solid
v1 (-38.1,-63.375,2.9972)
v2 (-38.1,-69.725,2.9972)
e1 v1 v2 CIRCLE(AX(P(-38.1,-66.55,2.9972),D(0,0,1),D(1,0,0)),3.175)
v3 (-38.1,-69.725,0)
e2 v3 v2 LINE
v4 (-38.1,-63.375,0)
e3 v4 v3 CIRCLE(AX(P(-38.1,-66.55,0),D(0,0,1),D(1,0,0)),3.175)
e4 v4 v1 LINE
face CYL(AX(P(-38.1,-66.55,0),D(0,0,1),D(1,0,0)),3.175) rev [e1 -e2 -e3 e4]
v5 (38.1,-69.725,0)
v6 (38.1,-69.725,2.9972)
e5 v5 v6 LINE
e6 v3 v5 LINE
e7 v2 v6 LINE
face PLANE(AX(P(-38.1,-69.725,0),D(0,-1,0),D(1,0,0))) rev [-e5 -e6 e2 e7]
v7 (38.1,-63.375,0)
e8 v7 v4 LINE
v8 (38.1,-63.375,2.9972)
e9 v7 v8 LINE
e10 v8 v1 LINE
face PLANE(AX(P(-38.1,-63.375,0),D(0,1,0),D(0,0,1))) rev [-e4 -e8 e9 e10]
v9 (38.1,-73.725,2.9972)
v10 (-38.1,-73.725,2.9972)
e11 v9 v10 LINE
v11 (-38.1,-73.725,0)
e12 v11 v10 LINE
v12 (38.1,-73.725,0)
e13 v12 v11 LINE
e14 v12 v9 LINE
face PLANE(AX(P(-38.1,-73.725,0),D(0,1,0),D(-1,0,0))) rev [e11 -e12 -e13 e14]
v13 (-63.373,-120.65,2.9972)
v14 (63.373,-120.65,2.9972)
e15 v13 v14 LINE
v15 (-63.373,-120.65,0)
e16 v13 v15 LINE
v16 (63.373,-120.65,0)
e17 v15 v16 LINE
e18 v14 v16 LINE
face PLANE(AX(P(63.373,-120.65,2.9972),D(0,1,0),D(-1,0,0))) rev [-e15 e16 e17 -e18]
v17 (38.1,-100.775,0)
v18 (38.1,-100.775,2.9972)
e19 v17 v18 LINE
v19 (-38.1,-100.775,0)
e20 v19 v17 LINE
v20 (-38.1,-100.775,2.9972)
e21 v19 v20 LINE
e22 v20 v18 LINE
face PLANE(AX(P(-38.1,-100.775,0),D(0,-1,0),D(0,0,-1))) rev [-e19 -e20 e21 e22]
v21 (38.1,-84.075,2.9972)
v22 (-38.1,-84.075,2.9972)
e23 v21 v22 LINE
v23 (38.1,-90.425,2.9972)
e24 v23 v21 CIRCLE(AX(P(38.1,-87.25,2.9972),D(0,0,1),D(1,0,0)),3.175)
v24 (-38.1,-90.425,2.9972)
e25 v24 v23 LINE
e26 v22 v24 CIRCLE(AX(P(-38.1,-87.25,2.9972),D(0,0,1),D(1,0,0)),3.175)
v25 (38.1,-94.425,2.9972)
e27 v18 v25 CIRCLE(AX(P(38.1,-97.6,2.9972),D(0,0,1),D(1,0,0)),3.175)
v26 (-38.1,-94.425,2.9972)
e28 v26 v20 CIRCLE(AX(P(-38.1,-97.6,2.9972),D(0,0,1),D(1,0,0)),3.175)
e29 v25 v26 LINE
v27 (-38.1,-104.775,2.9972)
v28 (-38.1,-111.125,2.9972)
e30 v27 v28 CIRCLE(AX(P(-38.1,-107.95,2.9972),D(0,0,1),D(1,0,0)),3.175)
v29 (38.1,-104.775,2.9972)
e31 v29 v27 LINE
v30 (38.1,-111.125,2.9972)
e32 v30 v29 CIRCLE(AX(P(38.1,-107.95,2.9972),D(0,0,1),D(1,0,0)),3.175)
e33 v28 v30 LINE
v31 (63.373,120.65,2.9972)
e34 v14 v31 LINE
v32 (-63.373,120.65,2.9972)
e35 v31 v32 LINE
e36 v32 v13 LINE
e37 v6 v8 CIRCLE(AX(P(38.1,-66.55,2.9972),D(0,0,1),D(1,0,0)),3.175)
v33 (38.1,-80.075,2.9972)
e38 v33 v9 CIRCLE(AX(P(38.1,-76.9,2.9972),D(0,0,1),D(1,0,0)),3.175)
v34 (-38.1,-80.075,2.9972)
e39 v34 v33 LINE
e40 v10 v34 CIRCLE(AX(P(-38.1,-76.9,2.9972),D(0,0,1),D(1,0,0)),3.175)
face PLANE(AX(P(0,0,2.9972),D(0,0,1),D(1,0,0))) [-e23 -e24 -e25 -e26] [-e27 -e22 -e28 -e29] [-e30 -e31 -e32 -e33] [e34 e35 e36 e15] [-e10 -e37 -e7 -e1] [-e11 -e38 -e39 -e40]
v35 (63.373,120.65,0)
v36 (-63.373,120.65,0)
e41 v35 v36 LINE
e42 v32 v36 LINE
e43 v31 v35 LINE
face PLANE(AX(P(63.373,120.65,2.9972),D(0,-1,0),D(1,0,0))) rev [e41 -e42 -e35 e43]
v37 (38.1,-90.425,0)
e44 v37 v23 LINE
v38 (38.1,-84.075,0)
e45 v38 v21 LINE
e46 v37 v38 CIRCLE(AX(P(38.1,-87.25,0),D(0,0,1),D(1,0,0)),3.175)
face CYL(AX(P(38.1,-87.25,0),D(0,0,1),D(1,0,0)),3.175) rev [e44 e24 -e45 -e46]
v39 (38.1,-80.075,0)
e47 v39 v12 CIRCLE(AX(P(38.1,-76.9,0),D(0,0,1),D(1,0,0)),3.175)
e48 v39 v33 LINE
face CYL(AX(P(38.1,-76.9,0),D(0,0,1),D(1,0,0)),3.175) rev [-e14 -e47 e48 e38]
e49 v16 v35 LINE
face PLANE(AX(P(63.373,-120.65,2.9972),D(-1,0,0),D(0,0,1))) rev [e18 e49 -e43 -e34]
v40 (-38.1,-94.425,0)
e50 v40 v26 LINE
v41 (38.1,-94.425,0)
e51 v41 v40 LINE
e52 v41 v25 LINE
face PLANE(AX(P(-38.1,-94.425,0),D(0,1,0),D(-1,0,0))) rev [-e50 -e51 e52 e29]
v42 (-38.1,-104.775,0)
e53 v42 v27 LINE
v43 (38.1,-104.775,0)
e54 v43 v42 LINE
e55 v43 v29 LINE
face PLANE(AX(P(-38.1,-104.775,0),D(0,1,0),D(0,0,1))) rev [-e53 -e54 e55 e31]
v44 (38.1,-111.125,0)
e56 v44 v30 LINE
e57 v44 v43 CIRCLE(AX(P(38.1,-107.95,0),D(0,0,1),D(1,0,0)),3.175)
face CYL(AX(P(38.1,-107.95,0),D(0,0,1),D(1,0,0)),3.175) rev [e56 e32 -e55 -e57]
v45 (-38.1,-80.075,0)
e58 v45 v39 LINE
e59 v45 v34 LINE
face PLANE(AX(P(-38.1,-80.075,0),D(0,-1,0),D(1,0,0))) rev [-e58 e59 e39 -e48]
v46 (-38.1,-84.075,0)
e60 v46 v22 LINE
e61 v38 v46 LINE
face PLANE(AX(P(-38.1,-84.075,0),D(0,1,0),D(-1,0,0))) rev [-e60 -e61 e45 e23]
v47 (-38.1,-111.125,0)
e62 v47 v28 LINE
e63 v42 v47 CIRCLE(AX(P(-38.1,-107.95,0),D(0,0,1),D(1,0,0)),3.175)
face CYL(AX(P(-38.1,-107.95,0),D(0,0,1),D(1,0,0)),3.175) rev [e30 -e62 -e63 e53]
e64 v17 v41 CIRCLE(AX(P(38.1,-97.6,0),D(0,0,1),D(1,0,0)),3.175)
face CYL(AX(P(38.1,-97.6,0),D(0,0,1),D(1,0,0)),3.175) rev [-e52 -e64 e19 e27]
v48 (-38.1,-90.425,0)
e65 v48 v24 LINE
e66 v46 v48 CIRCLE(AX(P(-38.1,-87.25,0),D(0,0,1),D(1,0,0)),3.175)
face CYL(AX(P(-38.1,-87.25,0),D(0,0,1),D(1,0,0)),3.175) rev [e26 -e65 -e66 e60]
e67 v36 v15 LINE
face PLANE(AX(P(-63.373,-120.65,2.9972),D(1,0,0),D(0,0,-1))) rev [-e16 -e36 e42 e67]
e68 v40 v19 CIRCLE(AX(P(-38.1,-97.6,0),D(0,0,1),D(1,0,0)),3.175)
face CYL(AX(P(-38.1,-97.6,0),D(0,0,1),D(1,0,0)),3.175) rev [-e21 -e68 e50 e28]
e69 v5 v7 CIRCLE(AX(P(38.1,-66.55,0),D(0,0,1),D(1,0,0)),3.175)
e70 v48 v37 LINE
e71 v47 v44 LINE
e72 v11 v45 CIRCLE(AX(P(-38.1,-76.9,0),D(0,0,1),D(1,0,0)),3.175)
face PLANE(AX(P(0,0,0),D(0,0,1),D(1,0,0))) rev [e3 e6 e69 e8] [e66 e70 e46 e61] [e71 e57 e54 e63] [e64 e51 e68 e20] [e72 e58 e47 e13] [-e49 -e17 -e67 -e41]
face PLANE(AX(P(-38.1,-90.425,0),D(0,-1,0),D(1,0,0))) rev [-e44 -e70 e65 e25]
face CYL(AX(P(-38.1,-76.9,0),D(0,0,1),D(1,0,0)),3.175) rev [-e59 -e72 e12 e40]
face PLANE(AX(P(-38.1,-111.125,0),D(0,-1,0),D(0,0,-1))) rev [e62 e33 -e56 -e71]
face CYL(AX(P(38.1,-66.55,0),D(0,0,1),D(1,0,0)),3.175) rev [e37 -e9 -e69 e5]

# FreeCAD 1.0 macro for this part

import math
import FreeCAD as App
import Part
import Sketcher

V = App.Vector
Q = App.Units.Quantity


def add_polygon(sketch, points):
    """Adds a closed chain of lines whose ends are joined by coincident constraints."""
    first, n = sketch.GeometryCount, len(points)
    for a, b in zip(points, points[1:] + points[:1]):
        sketch.addGeometry(Part.LineSegment(App.Vector(*a, 0), App.Vector(*b, 0)), False)
    for i in range(n):
        sketch.addConstraint(Sketcher.Constraint("Coincident", first + i, 2, first + (i + 1) % n, 1))

doc = App.newDocument("Part")
params = doc.addObject("Spreadsheet::Sheet", "Params")
for row, (alias, value) in enumerate([
    ("sketch1_height", "9.5 in"),
    ("sketch1_width", "4.99 in"),
    ("pad1_length", "0.118 in"),
    ("sketch2_width", "3 in"),
    ("sketch2_radius", "0.125 in"),
], start=1):
    params.set(f"A{row}", alias)
    params.set(f"B{row}", "=" + value)
    params.setAlias(f"B{row}", alias)

body = doc.addObject("PartDesign::Body", "Body")

sketch1 = doc.addObject("Sketcher::SketchObject", "Sketch")
body.addObject(sketch1)
sketch1.AttachmentSupport = (doc.XY_Plane, [""])
sketch1.MapMode = "FlatFace"
add_polygon(sketch1, [(-63, 121), (-63, -121), (63, -121), (63, 121)])
sketch1.addConstraint([
    Sketcher.Constraint("Vertical", 0),
    Sketcher.Constraint("Horizontal", 1),
    Sketcher.Constraint("Vertical", 2),
    Sketcher.Constraint("Horizontal", 3),
    Sketcher.Constraint("Symmetric", 0, 2, 2, 2, -1, 1),
    Sketcher.Constraint("DistanceY", 0, 2, 0, 1, Q("9.5 in")),
    Sketcher.Constraint("DistanceX", 1, 1, 1, 2, Q("4.99 in")),
])
sketch1.setExpression("Constraints[9]", "Params.sketch1_height")
sketch1.setExpression("Constraints[10]", "Params.sketch1_width")
pad1 = doc.addObject("PartDesign::Pad", "Pad")
body.addObject(pad1)
pad1.Profile = sketch1
pad1.setExpression("Length", "Params.pad1_length")

sketch2 = doc.addObject("Sketcher::SketchObject", "Sketch001")
body.addObject(sketch2)
sketch2.AttachmentSupport = (doc.XY_Plane, [""])
sketch2.MapMode = "FlatFace"
sketch2.AttachmentOffset = App.Placement(V(0, 0, 0.118 * 25.4), App.Rotation())
sketch2.addGeometry([
    Part.LineSegment(V(38.1, -63.4, 0), V(-38.1, -63.4, 0)),
    Part.ArcOfCircle(Part.Circle(V(-38.1, -66.5, 0), V(0, 0, 1), 3.2), math.radians(90), math.radians(270)),
    Part.LineSegment(V(-38.1, -69.7, 0), V(38.1, -69.7, 0)),
    Part.ArcOfCircle(Part.Circle(V(38.1, -66.5, 0), V(0, 0, 1), 3.2), math.radians(-90), math.radians(90)),
    Part.LineSegment(V(38.1, -84.1, 0), V(-38.1, -84.1, 0)),
    Part.ArcOfCircle(Part.Circle(V(-38.1, -87.2, 0), V(0, 0, 1), 3.2), math.radians(90), math.radians(270)),
    Part.LineSegment(V(-38.1, -90.4, 0), V(38.1, -90.4, 0)),
    Part.ArcOfCircle(Part.Circle(V(38.1, -87.2, 0), V(0, 0, 1), 3.2), math.radians(-90), math.radians(90)),
    Part.LineSegment(V(38.1, -104.8, 0), V(-38.1, -104.8, 0)),
    Part.ArcOfCircle(Part.Circle(V(-38.1, -108, 0), V(0, 0, 1), 3.2), math.radians(90), math.radians(270)),
    Part.LineSegment(V(-38.1, -111.1, 0), V(38.1, -111.1, 0)),
    Part.ArcOfCircle(Part.Circle(V(38.1, -108, 0), V(0, 0, 1), 3.2), math.radians(-90), math.radians(90)),
    Part.LineSegment(V(38.1, -73.7, 0), V(-38.1, -73.7, 0)),
    Part.ArcOfCircle(Part.Circle(V(-38.1, -76.9, 0), V(0, 0, 1), 3.2), math.radians(90), math.radians(270)),
    Part.LineSegment(V(-38.1, -80.1, 0), V(38.1, -80.1, 0)),
    Part.ArcOfCircle(Part.Circle(V(38.1, -76.9, 0), V(0, 0, 1), 3.2), math.radians(-90), math.radians(90)),
    Part.LineSegment(V(38.1, -94.4, 0), V(-38.1, -94.4, 0)),
    Part.ArcOfCircle(Part.Circle(V(-38.1, -97.6, 0), V(0, 0, 1), 3.2), math.radians(90), math.radians(270)),
    Part.LineSegment(V(-38.1, -100.8, 0), V(38.1, -100.8, 0)),
    Part.ArcOfCircle(Part.Circle(V(38.1, -97.6, 0), V(0, 0, 1), 3.2), math.radians(-90), math.radians(90)),
], False)
sketch2.addConstraint([
    Sketcher.Constraint("Tangent", 0, 2, 1, 1),
    Sketcher.Constraint("Tangent", 1, 2, 2, 1),
    Sketcher.Constraint("Tangent", 2, 2, 3, 1),
    Sketcher.Constraint("Tangent", 3, 2, 0, 1),
    Sketcher.Constraint("Tangent", 4, 2, 5, 1),
    Sketcher.Constraint("Tangent", 5, 2, 6, 1),
    Sketcher.Constraint("Tangent", 6, 2, 7, 1),
    Sketcher.Constraint("Tangent", 7, 2, 4, 1),
    Sketcher.Constraint("Tangent", 8, 2, 9, 1),
    Sketcher.Constraint("Tangent", 9, 2, 10, 1),
    Sketcher.Constraint("Tangent", 10, 2, 11, 1),
    Sketcher.Constraint("Tangent", 11, 2, 8, 1),
    Sketcher.Constraint("Tangent", 12, 2, 13, 1),
    Sketcher.Constraint("Tangent", 13, 2, 14, 1),
    Sketcher.Constraint("Tangent", 14, 2, 15, 1),
    Sketcher.Constraint("Tangent", 15, 2, 12, 1),
    Sketcher.Constraint("Tangent", 16, 2, 17, 1),
    Sketcher.Constraint("Tangent", 17, 2, 18, 1),
    Sketcher.Constraint("Tangent", 18, 2, 19, 1),
    Sketcher.Constraint("Tangent", 19, 2, 16, 1),
    Sketcher.Constraint("Horizontal", 0),
    Sketcher.Constraint("Horizontal", 2),
    Sketcher.Constraint("Horizontal", 4),
    Sketcher.Constraint("Horizontal", 6),
    Sketcher.Constraint("Horizontal", 8),
    Sketcher.Constraint("Horizontal", 10),
    Sketcher.Constraint("Horizontal", 12),
    Sketcher.Constraint("Horizontal", 14),
    Sketcher.Constraint("Horizontal", 16),
    Sketcher.Constraint("Horizontal", 18),
    Sketcher.Constraint("Equal", 3, 5),
    Sketcher.Constraint("Equal", 7, 9),
    Sketcher.Constraint("Equal", 11, 13),
    Sketcher.Constraint("Equal", 15, 17),
    Sketcher.Constraint("Vertical", 1, 3, 5, 3),
    Sketcher.Constraint("Vertical", 3, 3, 7, 3),
    Sketcher.Constraint("Vertical", 5, 3, 9, 3),
    Sketcher.Constraint("Vertical", 7, 3, 11, 3),
    Sketcher.Constraint("Vertical", 9, 3, 13, 3),
    Sketcher.Constraint("Vertical", 11, 3, 15, 3),
    Sketcher.Constraint("Vertical", 13, 3, 17, 3),
    Sketcher.Constraint("Vertical", 15, 3, 19, 3),
    Sketcher.Constraint("DistanceX", 0, 2, 0, 1, Q("3 in")),
    Sketcher.Constraint("Radius", 1, Q("0.125 in")),
    Sketcher.Constraint("DistanceX", 1, 3, -1, 1, Q("1.5 in")),
    Sketcher.Constraint("DistanceY", 9, 3, -1, 1, Q("4.25 in")),
    Sketcher.Constraint("DistanceY", 1, 3, -1, 1, 66.55),
    Sketcher.Constraint("DistanceY", 5, 3, -1, 1, 87.25),
    Sketcher.Constraint("DistanceY", 13, 3, -1, 1, 76.9),
    Sketcher.Constraint("DistanceY", 17, 3, -1, 1, 97.6),
])
sketch2.setExpression("Constraints[42]", "Params.sketch2_width")
sketch2.setExpression("Constraints[43]", "Params.sketch2_radius")
pocket1 = doc.addObject("PartDesign::Pocket", "Pocket")
body.addObject(pocket1)
pocket1.Profile = sketch2
pocket1.Type = "ThroughAll"

doc.recompute()
